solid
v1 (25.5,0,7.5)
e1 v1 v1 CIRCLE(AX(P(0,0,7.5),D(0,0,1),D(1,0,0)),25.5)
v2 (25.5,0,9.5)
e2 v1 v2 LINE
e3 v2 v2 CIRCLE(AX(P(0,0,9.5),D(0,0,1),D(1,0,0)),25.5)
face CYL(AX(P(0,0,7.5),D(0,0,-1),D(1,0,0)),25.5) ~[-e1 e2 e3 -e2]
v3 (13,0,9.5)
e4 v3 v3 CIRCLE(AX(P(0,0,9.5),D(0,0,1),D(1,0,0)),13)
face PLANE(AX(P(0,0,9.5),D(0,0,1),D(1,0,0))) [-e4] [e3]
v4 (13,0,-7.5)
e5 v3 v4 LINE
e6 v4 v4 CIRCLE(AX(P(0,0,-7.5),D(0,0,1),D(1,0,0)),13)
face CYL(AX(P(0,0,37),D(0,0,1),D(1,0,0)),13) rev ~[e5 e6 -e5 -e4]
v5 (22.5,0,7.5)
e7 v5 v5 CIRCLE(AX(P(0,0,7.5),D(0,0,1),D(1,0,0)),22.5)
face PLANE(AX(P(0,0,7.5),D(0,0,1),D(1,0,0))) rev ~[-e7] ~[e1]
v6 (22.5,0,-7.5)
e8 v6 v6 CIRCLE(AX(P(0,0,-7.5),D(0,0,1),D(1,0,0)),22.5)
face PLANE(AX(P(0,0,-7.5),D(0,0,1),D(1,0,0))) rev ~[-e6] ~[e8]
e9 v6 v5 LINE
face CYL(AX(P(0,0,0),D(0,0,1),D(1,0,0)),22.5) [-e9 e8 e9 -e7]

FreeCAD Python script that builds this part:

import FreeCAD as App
import Part
import Sketcher

doc = App.newDocument("Part")
body = doc.addObject("PartDesign::Body", "Body")

sketch1 = body.newObject("Sketcher::SketchObject", "Sketch")
sketch1.AttachmentSupport = (doc.getObject("XY_Plane"), [""])
sketch1.MapMode = "FlatFace"
sketch1.addGeometry(Part.Circle(App.Vector(0, 0, 0), App.Vector(0, 0, 1), 22.5), False)
sketch1.addConstraint([
    Sketcher.Constraint("Coincident", 0, 3, -1, 1),
    Sketcher.Constraint("Diameter", 0, 45.0),
])
pad1 = body.newObject("PartDesign::Pad", "Pad")
pad1.Profile = sketch1
pad1.Length = 15
pad1.Midplane = True

sketch2 = body.newObject("Sketcher::SketchObject", "Sketch001")
sketch2.AttachmentSupport = (doc.getObject("XY_Plane"), [""])
sketch2.MapMode = "FlatFace"
sketch2.AttachmentOffset = App.Placement(App.Vector(0, 0, 7.5), App.Rotation())
sketch2.addGeometry(Part.Circle(App.Vector(0, 0, 0), App.Vector(0, 0, 1), 25.5), False)
sketch2.addConstraint([
    Sketcher.Constraint("Coincident", 0, 3, -1, 1),
    Sketcher.Constraint("Diameter", 0, 51.0),
])
pad2 = body.newObject("PartDesign::Pad", "Pad001")
pad2.Profile = sketch2
pad2.Length = 2

sketch3 = body.newObject("Sketcher::SketchObject", "Sketch002")
sketch3.AttachmentSupport = (doc.getObject("XY_Plane"), [""])
sketch3.MapMode = "FlatFace"
sketch3.AttachmentOffset = App.Placement(App.Vector(0, 0, 37), App.Rotation())
sketch3.addGeometry(Part.Circle(App.Vector(0, 0, 0), App.Vector(0, 0, 1), 13), False)
sketch3.addConstraint([
    Sketcher.Constraint("Coincident", 0, 3, -1, 1),
    Sketcher.Constraint("Diameter", 0, 26.0),
])
pocket1 = body.newObject("PartDesign::Pocket", "Pocket")
pocket1.Profile = sketch3
pocket1.Type = "ThroughAll"

doc.recompute()
